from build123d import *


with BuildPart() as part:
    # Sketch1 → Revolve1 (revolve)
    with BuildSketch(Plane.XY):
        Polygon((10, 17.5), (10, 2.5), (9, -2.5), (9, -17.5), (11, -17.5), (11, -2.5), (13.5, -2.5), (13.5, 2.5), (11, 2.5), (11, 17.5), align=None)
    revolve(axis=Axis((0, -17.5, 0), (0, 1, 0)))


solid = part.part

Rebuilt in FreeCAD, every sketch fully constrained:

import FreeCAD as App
import Part
import Sketcher
Q = App.Units.Quantity

doc = App.newDocument("Part")
body = doc.addObject("PartDesign::Body", "Body")

# Sketch on XY plane
sketch1 = doc.addObject("Sketcher::SketchObject", "Sketch")
body.addObject(sketch1)
sketch1.AttachmentSupport = (doc.XY_Plane, [""])
sketch1.MapMode = "FlatFace"
sketch1.addGeometry([
    Part.LineSegment(App.Vector(10, 17.5, 0), App.Vector(10, 2.5, 0)),  # 0
    Part.LineSegment(App.Vector(10, 2.5, 0), App.Vector(9, -2.5, 0)),  # 1
    Part.LineSegment(App.Vector(9, -2.5, 0), App.Vector(9, -17.5, 0)),  # 2
    Part.LineSegment(App.Vector(9, -17.5, 0), App.Vector(11, -17.5, 0)),  # 3
    Part.LineSegment(App.Vector(11, -17.5, 0), App.Vector(11, -2.5, 0)),  # 4
    Part.LineSegment(App.Vector(11, -2.5, 0), App.Vector(13.5, -2.5, 0)),  # 5
    Part.LineSegment(App.Vector(13.5, -2.5, 0), App.Vector(13.5, 2.5, 0)),  # 6
    Part.LineSegment(App.Vector(13.5, 2.5, 0), App.Vector(11, 2.5, 0)),  # 7
    Part.LineSegment(App.Vector(11, 2.5, 0), App.Vector(11, 17.5, 0)),  # 8
    Part.LineSegment(App.Vector(11, 17.5, 0), App.Vector(10, 17.5, 0)),  # 9
], False)
sketch1.addConstraint([
    Sketcher.Constraint("Coincident", 0, 2, 1, 1),
    Sketcher.Constraint("Coincident", 1, 2, 2, 1),
    Sketcher.Constraint("Coincident", 2, 2, 3, 1),
    Sketcher.Constraint("Coincident", 3, 2, 4, 1),
    Sketcher.Constraint("Coincident", 4, 2, 5, 1),
    Sketcher.Constraint("Coincident", 5, 2, 6, 1),
    Sketcher.Constraint("Coincident", 6, 2, 7, 1),
    Sketcher.Constraint("Coincident", 7, 2, 8, 1),
    Sketcher.Constraint("Coincident", 8, 2, 9, 1),
    Sketcher.Constraint("Coincident", 9, 2, 0, 1),
    Sketcher.Constraint("Vertical", 0),
    Sketcher.Constraint("Vertical", 2),
    Sketcher.Constraint("Horizontal", 3),
    Sketcher.Constraint("Vertical", 4),
    Sketcher.Constraint("Horizontal", 5),
    Sketcher.Constraint("Vertical", 6),
    Sketcher.Constraint("Horizontal", 7),
    Sketcher.Constraint("Vertical", 8),
    Sketcher.Constraint("Horizontal", 9),
    Sketcher.Constraint("Symmetric", 4, 2, 7, 2, -1),
    Sketcher.Constraint("Horizontal", 1, 2, 4, 2),
    Sketcher.Constraint("Horizontal", 0, 2, 6, 2),
    Sketcher.Constraint("Equal", 0, 2),
    Sketcher.Constraint("DistanceX", 3, 1, 3, 2, Q("2 mm")),
    Sketcher.Constraint("DistanceX", 9, 2, 9, 1, Q("1 mm")),
    Sketcher.Constraint("DistanceY", 0, 2, 0, 1, Q("15 mm")),
    Sketcher.Constraint("DistanceY", 6, 1, 6, 2, Q("5 mm")),
    Sketcher.Constraint("DistanceX", 5, 1, 5, 2, Q("2.5 mm")),
    Sketcher.Constraint("DistanceX", -1, 1, 0, 2, Q("10 mm")),
])
revolution = doc.addObject("PartDesign::Revolution", "Revolution")
body.addObject(revolution)
revolution.Profile = sketch1
revolution.ReferenceAxis = (sketch1, ["V_Axis"])
revolution.Angle = 360

doc.recompute()
